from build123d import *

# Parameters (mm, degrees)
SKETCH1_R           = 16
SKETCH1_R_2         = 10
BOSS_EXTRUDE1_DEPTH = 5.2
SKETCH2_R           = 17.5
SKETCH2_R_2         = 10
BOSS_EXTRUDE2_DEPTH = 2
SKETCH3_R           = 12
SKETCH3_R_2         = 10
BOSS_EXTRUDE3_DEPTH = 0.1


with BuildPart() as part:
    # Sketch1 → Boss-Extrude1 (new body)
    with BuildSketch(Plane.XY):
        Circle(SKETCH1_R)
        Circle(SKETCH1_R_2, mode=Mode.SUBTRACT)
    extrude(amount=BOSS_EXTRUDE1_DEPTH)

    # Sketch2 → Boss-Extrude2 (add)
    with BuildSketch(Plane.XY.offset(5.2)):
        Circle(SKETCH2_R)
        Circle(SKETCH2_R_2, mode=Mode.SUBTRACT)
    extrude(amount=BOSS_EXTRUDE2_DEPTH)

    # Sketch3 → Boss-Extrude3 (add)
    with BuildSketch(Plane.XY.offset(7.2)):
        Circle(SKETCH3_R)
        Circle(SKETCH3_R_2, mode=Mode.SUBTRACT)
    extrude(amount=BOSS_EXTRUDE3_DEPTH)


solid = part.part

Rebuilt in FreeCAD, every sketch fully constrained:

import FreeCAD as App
import Part
import Sketcher

V = App.Vector
Q = App.Units.Quantity

doc = App.newDocument("Part")
params = doc.addObject("Spreadsheet::Sheet", "Params")
for row, (alias, value) in enumerate([
    ("sketch1_diameter", "32 mm"),
    ("sketch1_diameter2", "20 mm"),
    ("pad1_length", "5.2 mm"),
    ("sketch2_diameter", "35 mm"),
    ("sketch2_diameter2", "20 mm"),
    ("pad2_length", "2 mm"),
    ("sketch3_diameter", "24 mm"),
    ("sketch3_diameter2", "20 mm"),
    ("pad3_length", "0.1 mm"),
], start=1):
    params.set(f"A{row}", alias)
    params.set(f"B{row}", "=" + value)
    params.setAlias(f"B{row}", alias)

body = doc.addObject("PartDesign::Body", "Body")

# Sketch on XY plane
sketch1 = body.newObject("Sketcher::SketchObject", "Sketch")
sketch1.AttachmentSupport = (doc.getObject("XY_Plane"), [""])
sketch1.MapMode = "FlatFace"
sketch1.addGeometry([
    Part.Circle(V(0, 0, 0), V(0, 0, 1), 16),
    Part.Circle(V(0, 0, 0), V(0, 0, 1), 10),
], False)
sketch1.addConstraint([
    Sketcher.Constraint("Coincident", 0, 3, -1, 1),
    Sketcher.Constraint("Coincident", 1, 3, -1, 1),
    Sketcher.Constraint("Diameter", 0, Q("32 mm")),
    Sketcher.Constraint("Diameter", 1, Q("20 mm")),
])
sketch1.setExpression("Constraints[2]", "Params.sketch1_diameter")
sketch1.setExpression("Constraints[3]", "Params.sketch1_diameter2")
pad1 = body.newObject("PartDesign::Pad", "Pad")
pad1.Profile = sketch1
pad1.setExpression("Length", "Params.pad1_length")

# Sketch on XY plane
sketch2 = body.newObject("Sketcher::SketchObject", "Sketch001")
sketch2.AttachmentSupport = (doc.getObject("XY_Plane"), [""])
sketch2.MapMode = "FlatFace"
sketch2.AttachmentOffset = App.Placement(V(0, 0, 5.2), App.Rotation())
sketch2.addGeometry([
    Part.Circle(V(0, 0, 0), V(0, 0, 1), 18),
    Part.Circle(V(0, 0, 0), V(0, 0, 1), 10),
], False)
sketch2.addConstraint([
    Sketcher.Constraint("Coincident", 0, 3, -1, 1),
    Sketcher.Constraint("Coincident", 1, 3, -1, 1),
    Sketcher.Constraint("Diameter", 0, Q("35 mm")),
    Sketcher.Constraint("Diameter", 1, Q("20 mm")),
])
sketch2.setExpression("Constraints[2]", "Params.sketch2_diameter")
sketch2.setExpression("Constraints[3]", "Params.sketch2_diameter2")
pad2 = body.newObject("PartDesign::Pad", "Pad001")
pad2.Profile = sketch2
pad2.setExpression("Length", "Params.pad2_length")

# Sketch on XY plane
sketch3 = body.newObject("Sketcher::SketchObject", "Sketch002")
sketch3.AttachmentSupport = (doc.getObject("XY_Plane"), [""])
sketch3.MapMode = "FlatFace"
sketch3.AttachmentOffset = App.Placement(V(0, 0, 7.2), App.Rotation())
sketch3.addGeometry([
    Part.Circle(V(0, 0, 0), V(0, 0, 1), 12),
    Part.Circle(V(0, 0, 0), V(0, 0, 1), 10),
], False)
sketch3.addConstraint([
    Sketcher.Constraint("Coincident", 0, 3, -1, 1),
    Sketcher.Constraint("Coincident", 1, 3, -1, 1),
    Sketcher.Constraint("Diameter", 0, Q("24 mm")),
    Sketcher.Constraint("Diameter", 1, Q("20 mm")),
])
sketch3.setExpression("Constraints[2]", "Params.sketch3_diameter")
sketch3.setExpression("Constraints[3]", "Params.sketch3_diameter2")
pad3 = body.newObject("PartDesign::Pad", "Pad002")
pad3.Profile = sketch3
pad3.setExpression("Length", "Params.pad3_length")

doc.recompute()
